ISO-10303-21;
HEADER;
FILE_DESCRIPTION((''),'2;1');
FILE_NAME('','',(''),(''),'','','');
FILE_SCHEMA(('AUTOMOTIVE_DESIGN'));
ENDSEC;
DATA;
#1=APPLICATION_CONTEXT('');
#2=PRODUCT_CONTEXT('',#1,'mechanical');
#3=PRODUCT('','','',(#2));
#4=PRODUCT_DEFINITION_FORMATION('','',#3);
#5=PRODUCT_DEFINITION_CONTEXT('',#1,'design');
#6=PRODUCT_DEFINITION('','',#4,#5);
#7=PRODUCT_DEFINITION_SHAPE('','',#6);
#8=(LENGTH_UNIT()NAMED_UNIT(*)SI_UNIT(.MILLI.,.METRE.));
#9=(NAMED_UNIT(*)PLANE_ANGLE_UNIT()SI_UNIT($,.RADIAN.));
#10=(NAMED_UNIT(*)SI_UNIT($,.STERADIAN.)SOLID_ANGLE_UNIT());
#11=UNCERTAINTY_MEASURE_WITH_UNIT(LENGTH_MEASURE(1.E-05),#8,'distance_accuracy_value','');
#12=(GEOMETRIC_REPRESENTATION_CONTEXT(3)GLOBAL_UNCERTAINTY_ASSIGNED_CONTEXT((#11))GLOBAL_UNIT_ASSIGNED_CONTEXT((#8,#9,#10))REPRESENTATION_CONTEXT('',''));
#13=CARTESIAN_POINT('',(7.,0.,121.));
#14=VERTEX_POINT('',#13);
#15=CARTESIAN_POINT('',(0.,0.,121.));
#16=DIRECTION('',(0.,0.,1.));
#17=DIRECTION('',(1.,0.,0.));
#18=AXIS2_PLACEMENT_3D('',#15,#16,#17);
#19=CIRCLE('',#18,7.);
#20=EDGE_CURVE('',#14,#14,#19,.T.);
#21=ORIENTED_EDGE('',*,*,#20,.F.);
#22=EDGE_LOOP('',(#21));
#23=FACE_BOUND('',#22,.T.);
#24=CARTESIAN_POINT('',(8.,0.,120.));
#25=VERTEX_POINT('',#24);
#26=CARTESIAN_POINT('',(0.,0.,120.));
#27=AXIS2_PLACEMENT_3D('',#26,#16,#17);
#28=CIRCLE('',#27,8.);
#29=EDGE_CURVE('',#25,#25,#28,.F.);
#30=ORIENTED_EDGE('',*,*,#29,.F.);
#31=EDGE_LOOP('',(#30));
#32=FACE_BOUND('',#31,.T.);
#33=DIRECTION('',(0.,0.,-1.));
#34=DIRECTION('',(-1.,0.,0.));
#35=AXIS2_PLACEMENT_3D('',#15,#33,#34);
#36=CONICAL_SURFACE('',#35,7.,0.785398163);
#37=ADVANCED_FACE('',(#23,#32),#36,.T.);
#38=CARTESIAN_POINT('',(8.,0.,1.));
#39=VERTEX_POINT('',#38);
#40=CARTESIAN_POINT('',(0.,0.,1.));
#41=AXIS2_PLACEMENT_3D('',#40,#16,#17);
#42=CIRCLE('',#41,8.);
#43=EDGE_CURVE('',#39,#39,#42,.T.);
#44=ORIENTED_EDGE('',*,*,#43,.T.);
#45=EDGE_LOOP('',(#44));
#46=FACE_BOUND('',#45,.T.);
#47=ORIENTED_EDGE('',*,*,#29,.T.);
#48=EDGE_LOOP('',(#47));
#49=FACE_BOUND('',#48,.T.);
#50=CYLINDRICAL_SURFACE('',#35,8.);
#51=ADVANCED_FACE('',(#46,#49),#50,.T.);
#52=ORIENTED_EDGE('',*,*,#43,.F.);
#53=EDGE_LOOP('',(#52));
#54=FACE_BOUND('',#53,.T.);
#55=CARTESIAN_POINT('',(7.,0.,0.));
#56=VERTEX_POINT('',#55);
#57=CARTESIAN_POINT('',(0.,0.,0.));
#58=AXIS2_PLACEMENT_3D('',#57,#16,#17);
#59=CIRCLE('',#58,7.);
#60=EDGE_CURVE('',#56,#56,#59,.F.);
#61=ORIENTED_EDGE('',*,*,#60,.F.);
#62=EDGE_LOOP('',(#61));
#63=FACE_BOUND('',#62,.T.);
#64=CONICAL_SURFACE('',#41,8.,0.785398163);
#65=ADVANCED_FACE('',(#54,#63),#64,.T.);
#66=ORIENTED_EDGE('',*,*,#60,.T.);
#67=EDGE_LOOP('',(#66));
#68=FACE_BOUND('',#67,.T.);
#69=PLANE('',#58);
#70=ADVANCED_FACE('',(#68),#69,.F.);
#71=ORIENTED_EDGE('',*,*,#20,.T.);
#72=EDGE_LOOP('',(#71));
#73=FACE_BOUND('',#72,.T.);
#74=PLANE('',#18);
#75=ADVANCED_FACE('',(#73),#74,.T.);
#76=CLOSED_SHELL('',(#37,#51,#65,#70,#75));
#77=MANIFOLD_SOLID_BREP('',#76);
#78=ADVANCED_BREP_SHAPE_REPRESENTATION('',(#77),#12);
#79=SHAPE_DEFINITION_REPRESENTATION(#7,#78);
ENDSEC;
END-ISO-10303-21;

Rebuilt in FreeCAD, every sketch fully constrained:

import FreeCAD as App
import Part
import Sketcher
Q = App.Units.Quantity


def edges_at(feature, points):
    """Names of the edges that pass closest to the given points."""
    edges = feature.Shape.Edges
    near = lambda p: min(range(len(edges)), key=lambda i: edges[i].distToShape(Part.Vertex(*p))[0])
    return sorted({f"Edge{near(p) + 1}" for p in points})

doc = App.newDocument("Part")
params = doc.addObject("Spreadsheet::Sheet", "Params")
for row, (alias, value) in enumerate([
    ("sketch1_diameter", "16 mm"),
    ("pad1_length", "121 mm"),
    ("chamfer_size", "1 mm"),
], start=1):
    params.set(f"A{row}", alias)
    params.set(f"B{row}", "=" + value)
    params.setAlias(f"B{row}", alias)

body = doc.addObject("PartDesign::Body", "Body")

# Sketch on XY plane
sketch1 = body.newObject("Sketcher::SketchObject", "Sketch")
sketch1.AttachmentSupport = (doc.getObject("XY_Plane"), [""])
sketch1.MapMode = "FlatFace"
sketch1.addGeometry(Part.Circle(App.Vector(0, 0, 0), App.Vector(0, 0, 1), 8), False)
sketch1.addConstraint([
    Sketcher.Constraint("Coincident", 0, 3, -1, 1),
    Sketcher.Constraint("Diameter", 0, Q("16 mm")),
])
sketch1.setExpression("Constraints[1]", "Params.sketch1_diameter")
pad1 = body.newObject("PartDesign::Pad", "Pad")
pad1.Profile = sketch1
pad1.setExpression("Length", "Params.pad1_length")
doc.recompute()

chamfer = body.newObject("PartDesign::Chamfer", "Chamfer")
chamfer.Base = (pad1, edges_at(pad1, [(-8, 0, 0), (-8, 0, 121)]))
chamfer.setExpression("Size", "Params.chamfer_size")

doc.recompute()
